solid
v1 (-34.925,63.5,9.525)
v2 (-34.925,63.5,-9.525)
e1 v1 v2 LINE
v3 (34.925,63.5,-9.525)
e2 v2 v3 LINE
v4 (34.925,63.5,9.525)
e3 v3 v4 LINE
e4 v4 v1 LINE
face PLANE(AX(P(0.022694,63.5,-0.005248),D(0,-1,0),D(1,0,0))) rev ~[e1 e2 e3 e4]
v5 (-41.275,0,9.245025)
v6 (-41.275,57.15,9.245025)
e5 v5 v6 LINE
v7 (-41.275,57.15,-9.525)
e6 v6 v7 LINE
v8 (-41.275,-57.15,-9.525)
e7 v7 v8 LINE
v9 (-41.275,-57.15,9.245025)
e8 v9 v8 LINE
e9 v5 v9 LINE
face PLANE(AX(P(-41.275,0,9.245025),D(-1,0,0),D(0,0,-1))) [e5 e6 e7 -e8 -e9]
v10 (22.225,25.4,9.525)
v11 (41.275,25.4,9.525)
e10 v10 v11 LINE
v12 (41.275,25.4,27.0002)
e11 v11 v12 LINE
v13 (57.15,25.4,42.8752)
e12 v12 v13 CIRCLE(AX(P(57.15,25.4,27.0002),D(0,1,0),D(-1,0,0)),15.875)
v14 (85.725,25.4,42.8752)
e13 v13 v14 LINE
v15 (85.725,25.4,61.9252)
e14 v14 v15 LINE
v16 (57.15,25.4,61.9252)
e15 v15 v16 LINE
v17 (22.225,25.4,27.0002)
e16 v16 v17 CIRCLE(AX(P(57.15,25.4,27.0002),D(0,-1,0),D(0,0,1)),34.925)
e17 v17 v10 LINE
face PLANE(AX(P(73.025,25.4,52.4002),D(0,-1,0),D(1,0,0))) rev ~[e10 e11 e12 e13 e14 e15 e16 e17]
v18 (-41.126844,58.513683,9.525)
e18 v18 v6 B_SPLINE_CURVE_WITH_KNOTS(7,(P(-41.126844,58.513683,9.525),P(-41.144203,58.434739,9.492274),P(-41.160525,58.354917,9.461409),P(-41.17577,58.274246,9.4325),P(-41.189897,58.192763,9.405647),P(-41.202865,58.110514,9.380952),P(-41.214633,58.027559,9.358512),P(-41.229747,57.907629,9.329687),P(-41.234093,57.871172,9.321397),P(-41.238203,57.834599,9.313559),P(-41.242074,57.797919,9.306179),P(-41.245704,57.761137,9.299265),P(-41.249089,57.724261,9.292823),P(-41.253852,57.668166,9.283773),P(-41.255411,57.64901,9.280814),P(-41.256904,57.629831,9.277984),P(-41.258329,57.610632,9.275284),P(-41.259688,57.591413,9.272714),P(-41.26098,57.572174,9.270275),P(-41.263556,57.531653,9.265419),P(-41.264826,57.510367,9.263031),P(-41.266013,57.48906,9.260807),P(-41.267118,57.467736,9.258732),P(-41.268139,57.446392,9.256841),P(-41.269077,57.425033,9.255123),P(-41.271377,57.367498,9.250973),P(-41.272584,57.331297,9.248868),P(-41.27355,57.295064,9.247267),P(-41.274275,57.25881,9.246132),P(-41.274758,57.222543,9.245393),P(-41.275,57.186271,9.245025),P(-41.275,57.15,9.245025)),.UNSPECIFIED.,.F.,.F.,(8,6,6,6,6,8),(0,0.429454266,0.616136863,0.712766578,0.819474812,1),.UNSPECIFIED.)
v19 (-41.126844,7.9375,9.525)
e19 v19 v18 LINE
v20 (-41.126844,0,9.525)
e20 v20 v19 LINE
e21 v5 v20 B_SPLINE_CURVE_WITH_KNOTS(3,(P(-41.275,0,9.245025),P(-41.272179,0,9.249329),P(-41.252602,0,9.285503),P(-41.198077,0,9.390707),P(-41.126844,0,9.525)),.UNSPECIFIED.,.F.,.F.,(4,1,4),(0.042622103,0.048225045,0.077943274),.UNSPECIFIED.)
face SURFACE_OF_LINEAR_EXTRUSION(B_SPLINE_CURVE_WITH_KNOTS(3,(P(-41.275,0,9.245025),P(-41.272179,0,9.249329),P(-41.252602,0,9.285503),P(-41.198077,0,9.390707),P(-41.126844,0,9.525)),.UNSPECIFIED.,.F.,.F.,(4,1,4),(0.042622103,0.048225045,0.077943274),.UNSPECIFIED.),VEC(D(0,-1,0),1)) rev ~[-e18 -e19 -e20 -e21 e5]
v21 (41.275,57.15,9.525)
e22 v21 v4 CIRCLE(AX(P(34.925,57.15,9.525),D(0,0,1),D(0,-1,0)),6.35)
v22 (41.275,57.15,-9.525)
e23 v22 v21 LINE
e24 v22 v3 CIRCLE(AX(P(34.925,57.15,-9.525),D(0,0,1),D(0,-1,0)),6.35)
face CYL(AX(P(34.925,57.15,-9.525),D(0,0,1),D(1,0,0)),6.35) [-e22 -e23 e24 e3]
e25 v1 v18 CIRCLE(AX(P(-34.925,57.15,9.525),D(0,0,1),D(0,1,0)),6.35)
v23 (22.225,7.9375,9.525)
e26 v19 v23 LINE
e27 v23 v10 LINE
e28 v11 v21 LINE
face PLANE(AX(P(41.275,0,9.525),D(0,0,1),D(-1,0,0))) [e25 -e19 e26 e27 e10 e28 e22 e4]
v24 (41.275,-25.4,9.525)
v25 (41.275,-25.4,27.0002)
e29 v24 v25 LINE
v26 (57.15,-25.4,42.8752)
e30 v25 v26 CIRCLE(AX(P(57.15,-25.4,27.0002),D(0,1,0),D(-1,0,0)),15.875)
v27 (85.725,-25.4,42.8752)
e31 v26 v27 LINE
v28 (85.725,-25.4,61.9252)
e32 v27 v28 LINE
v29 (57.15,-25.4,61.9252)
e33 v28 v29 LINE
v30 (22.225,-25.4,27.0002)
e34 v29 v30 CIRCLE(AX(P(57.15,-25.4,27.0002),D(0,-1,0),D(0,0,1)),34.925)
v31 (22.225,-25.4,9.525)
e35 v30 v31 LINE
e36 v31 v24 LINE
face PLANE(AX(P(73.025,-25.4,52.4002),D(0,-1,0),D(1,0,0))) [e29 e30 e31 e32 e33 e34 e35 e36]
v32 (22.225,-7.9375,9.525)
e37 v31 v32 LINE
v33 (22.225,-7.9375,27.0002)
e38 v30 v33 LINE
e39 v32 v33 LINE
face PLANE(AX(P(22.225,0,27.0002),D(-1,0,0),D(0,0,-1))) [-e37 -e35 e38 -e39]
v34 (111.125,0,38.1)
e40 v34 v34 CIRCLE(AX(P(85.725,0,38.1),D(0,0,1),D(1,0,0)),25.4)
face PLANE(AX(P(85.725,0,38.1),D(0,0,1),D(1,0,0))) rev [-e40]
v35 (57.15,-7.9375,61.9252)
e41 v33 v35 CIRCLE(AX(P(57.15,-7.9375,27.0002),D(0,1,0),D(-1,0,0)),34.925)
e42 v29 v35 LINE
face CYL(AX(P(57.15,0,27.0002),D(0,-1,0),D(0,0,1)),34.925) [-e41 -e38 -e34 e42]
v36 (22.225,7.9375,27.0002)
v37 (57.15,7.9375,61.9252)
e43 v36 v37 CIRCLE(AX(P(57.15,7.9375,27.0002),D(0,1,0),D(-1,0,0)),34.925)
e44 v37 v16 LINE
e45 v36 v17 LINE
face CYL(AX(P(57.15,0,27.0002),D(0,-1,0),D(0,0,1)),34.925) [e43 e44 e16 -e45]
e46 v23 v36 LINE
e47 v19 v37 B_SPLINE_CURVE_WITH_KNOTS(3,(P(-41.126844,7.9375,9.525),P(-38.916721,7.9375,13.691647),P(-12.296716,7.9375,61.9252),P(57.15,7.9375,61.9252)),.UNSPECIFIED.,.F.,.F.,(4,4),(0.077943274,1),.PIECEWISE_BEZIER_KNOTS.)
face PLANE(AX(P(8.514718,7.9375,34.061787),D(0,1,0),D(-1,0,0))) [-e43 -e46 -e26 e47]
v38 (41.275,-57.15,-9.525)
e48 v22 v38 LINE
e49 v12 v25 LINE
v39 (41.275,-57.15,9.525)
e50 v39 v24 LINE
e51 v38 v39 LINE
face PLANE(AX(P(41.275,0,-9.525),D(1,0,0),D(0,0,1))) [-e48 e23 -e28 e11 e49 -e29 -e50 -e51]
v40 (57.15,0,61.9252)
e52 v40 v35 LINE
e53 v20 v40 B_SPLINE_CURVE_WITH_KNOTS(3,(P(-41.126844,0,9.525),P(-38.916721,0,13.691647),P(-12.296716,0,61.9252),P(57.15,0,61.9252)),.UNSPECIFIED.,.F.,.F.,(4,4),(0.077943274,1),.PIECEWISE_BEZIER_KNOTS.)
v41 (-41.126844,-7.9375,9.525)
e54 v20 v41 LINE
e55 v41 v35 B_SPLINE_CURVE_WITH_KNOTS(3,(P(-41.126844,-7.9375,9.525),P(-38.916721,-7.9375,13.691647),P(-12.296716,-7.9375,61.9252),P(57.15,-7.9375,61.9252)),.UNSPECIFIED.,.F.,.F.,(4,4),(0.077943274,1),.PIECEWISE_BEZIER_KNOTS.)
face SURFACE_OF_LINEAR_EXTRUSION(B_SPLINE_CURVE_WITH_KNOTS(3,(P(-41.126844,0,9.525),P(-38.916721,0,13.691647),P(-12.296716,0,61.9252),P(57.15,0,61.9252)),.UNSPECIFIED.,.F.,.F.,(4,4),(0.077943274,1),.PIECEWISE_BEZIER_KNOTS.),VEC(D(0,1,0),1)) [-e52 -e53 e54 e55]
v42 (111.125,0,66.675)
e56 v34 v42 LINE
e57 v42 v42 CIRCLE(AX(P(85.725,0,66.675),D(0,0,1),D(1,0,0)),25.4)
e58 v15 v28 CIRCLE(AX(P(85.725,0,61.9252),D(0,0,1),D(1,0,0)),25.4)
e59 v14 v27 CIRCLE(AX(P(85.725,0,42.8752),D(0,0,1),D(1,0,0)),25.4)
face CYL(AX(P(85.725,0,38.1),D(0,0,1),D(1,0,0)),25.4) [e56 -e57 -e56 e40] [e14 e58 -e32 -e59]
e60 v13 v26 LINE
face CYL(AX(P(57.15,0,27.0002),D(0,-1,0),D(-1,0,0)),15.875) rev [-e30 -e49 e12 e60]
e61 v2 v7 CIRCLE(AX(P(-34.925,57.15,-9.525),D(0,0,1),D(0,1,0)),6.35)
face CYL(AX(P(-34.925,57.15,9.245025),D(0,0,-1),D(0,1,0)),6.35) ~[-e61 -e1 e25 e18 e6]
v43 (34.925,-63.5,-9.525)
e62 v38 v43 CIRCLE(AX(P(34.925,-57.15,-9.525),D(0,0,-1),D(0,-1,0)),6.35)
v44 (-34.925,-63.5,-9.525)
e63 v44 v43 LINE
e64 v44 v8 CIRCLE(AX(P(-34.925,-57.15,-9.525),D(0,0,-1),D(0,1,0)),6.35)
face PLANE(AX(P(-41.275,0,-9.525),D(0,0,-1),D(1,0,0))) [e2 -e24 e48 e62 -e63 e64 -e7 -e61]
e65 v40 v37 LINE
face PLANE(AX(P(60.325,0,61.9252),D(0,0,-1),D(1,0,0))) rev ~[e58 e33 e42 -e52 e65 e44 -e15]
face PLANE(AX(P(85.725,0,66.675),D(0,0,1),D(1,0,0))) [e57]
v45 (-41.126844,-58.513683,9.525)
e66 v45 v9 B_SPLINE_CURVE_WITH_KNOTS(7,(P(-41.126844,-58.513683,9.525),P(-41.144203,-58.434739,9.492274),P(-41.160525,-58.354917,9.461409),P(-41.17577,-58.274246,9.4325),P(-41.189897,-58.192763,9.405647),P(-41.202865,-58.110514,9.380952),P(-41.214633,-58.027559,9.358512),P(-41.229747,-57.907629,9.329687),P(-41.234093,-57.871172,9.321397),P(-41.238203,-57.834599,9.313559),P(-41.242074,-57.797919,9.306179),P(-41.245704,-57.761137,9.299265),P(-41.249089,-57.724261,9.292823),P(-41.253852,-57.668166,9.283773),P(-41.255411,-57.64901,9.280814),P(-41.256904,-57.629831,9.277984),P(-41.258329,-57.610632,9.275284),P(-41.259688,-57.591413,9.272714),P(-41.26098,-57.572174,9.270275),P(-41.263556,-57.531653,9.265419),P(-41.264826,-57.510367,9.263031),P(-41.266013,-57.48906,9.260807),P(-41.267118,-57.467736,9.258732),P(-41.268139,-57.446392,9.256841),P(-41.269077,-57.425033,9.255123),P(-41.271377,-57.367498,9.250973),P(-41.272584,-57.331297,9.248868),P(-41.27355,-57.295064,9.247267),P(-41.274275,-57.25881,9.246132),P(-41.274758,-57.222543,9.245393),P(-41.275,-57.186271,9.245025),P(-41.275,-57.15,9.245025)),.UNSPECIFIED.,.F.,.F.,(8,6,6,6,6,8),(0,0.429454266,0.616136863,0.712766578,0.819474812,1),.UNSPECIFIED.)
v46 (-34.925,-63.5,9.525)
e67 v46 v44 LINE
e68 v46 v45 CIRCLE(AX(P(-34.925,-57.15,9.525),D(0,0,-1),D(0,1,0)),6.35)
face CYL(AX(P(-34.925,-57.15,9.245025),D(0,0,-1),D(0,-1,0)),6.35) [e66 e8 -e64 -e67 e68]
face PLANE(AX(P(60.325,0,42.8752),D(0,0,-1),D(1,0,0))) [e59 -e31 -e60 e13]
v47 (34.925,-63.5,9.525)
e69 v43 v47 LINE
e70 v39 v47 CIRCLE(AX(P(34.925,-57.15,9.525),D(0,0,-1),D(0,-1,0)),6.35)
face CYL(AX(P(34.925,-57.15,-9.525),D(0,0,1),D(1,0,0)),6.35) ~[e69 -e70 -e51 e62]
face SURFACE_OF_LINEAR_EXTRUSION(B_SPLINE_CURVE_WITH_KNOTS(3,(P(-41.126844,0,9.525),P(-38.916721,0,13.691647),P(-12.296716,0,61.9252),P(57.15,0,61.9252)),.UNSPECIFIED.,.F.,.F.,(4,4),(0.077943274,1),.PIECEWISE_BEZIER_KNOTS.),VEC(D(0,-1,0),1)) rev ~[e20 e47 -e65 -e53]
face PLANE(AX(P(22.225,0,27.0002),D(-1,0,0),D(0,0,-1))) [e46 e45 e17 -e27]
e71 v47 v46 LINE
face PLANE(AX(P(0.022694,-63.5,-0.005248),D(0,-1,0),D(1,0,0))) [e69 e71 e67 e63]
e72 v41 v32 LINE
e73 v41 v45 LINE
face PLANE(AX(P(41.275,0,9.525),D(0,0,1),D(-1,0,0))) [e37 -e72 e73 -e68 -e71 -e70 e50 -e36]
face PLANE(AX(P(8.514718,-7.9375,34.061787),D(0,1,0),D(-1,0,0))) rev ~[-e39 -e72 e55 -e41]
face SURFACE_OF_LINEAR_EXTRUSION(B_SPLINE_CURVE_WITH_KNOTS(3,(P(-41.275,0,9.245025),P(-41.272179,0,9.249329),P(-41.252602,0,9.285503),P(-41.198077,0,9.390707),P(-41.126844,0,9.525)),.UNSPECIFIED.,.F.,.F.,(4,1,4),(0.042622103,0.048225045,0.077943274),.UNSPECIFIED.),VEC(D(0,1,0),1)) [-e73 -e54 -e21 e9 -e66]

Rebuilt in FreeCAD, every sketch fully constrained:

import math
import FreeCAD as App
import Part
import Sketcher

V = App.Vector
Q = App.Units.Quantity


def edges_at(feature, points):
    """Names of the edges that pass closest to the given points."""
    edges = feature.Shape.Edges
    near = lambda p: min(range(len(edges)), key=lambda i: edges[i].distToShape(Part.Vertex(*p))[0])
    return sorted({f"Edge{near(p) + 1}" for p in points})

doc = App.newDocument("Part")
body = doc.addObject("PartDesign::Body", "Body")

# Sketch on XZ plane
sketch1 = body.newObject("Sketcher::SketchObject", "Sketch")
sketch1.AttachmentSupport = (doc.getObject("XZ_Plane"), [""])
sketch1.MapMode = "FlatFace"
sketch1.addGeometry([
    Part.LineSegment(V(-41.275, 9.245025, 0), V(-41.275, -9.525, 0)),  # 0
    Part.LineSegment(V(-41.275, -9.525, 0), V(41.275, -9.525, 0)),  # 1
    Part.LineSegment(V(41.275, -9.525, 0), V(41.275, 9.525, 0)),  # 2
    Part.LineSegment(V(41.275, 9.525, 0), V(-41.126844, 9.525, 0)),  # 3
    Part.BSplineCurve([V(-41.275, 9.245025, 0), V(-41.272179, 9.249329, 0), V(-41.252602, 9.285503, 0), V(-41.198077, 9.390707, 0), V(-41.126844, 9.525, 0)], [4, 1, 4], [0.042622103, 0.048225045, 0.077943274], False, 3, [1, 1, 1, 1, 1], False),  # 4
], False)
sketch1.addConstraint([
    Sketcher.Constraint("Block", 4),
    Sketcher.Constraint("Coincident", 0, 2, 1, 1),
    Sketcher.Constraint("Coincident", 1, 2, 2, 1),
    Sketcher.Constraint("Coincident", 2, 2, 3, 1),
    Sketcher.Constraint("Coincident", 3, 2, 4, 2),
    Sketcher.Constraint("Coincident", 4, 1, 0, 1),
    Sketcher.Constraint("Vertical", 0),
    Sketcher.Constraint("Horizontal", 1),
    Sketcher.Constraint("Vertical", 2),
    Sketcher.Constraint("Horizontal", 3),
    Sketcher.Constraint("Symmetric", 0, 2, 2, 2, -1, 1),
])
pad1 = body.newObject("PartDesign::Pad", "Pad")
pad1.Profile = sketch1
pad1.Length = Q("5 in")
pad1.Midplane = True

# Sketch on XZ plane
sketch2 = body.newObject("Sketcher::SketchObject", "Sketch001")
sketch2.AttachmentSupport = (doc.getObject("XZ_Plane"), [""])
sketch2.MapMode = "FlatFace"
sketch2.addGeometry([
    Part.LineSegment(V(22.225, 9.525, 0), V(41.275, 9.525, 0)),  # 0
    Part.LineSegment(V(41.275, 9.525, 0), V(41.275, 27.0002, 0)),  # 1
    Part.ArcOfCircle(Part.Circle(V(57.15, 27.0002, 0), V(0, 0, 1), 15.875), math.radians(90), math.radians(180)),  # 2
    Part.LineSegment(V(57.15, 42.8752, 0), V(60.325, 42.8752, 0)),  # 3
    Part.LineSegment(V(60.325, 42.8752, 0), V(60.325, 61.9252, 0)),  # 4
    Part.LineSegment(V(60.325, 61.9252, 0), V(57.15, 61.9252, 0)),  # 5
    Part.ArcOfCircle(Part.Circle(V(57.15, 27.0002, 0), V(0, 0, 1), 34.925), math.radians(90), math.radians(180)),  # 6
    Part.LineSegment(V(22.225, 27.0002, 0), V(22.225, 9.525, 0)),  # 7
], False)
sketch2.addConstraint([
    Sketcher.Constraint("Coincident", 0, 2, 1, 1),
    Sketcher.Constraint("Tangent", 1, 2, 2, 2),
    Sketcher.Constraint("Tangent", 2, 1, 3, 1),
    Sketcher.Constraint("Coincident", 3, 2, 4, 1),
    Sketcher.Constraint("Coincident", 4, 2, 5, 1),
    Sketcher.Constraint("Tangent", 5, 2, 6, 1),
    Sketcher.Constraint("Tangent", 6, 2, 7, 1),
    Sketcher.Constraint("Coincident", 7, 2, 0, 1),
    Sketcher.Constraint("Horizontal", 0),
    Sketcher.Constraint("Vertical", 1),
    Sketcher.Constraint("Horizontal", 3),
    Sketcher.Constraint("Vertical", 4),
    Sketcher.Constraint("Horizontal", 5),
    Sketcher.Constraint("Vertical", 7),
    Sketcher.Constraint("Coincident", 6, 3, 2, 3),
    Sketcher.Constraint("Radius", 2, Q("0.625 in")),
    Sketcher.Constraint("Radius", 6, Q("1.375 in")),
    Sketcher.Constraint("DistanceX", 3, 1, 3, 2, Q("0.125 in")),
    Sketcher.Constraint("DistanceY", 1, 1, 1, 2, Q("0.688 in")),
    Sketcher.Constraint("DistanceX", -1, 1, 2, 3, Q("2.25 in")),
    Sketcher.Constraint("DistanceY", -1, 1, 2, 3, Q("1.063 in")),
])
pad2 = body.newObject("PartDesign::Pad", "Pad001")
pad2.Profile = sketch2
pad2.Length = Q("2 in")
pad2.Midplane = True

# Sketch on XZ plane
sketch3 = body.newObject("Sketcher::SketchObject", "Sketch002")
sketch3.AttachmentSupport = (doc.getObject("XZ_Plane"), [""])
sketch3.MapMode = "FlatFace"
sketch3.addGeometry([
    Part.BSplineCurve([V(-41.126844, 9.525, 0), V(-38.916721, 13.691647, 0), V(-12.296716, 61.9252, 0), V(57.15, 61.9252, 0)], [4, 4], [0.077943274, 1], False, 3, [1, 1, 1, 1], False),
    Part.LineSegment(V(-41.126844, 9.525, 0), V(22.225, 9.525, 0)),
    Part.LineSegment(V(22.225, 9.525, 0), V(22.225, 27.0002, 0)),
    Part.ArcOfCircle(Part.Circle(V(57.15, 27.0002, 0), V(0, 0, 1), 34.925), math.radians(90), math.radians(180)),
], False)
sketch3.addConstraint([
    Sketcher.Constraint("Block", 0),
    Sketcher.Constraint("Coincident", 0, 1, 1, 1),
    Sketcher.Constraint("Coincident", 1, 2, 2, 1),
    Sketcher.Constraint("Tangent", 2, 2, 3, 2),
    Sketcher.Constraint("Coincident", 3, 1, 0, 2),
    Sketcher.Constraint("Horizontal", 1),
    Sketcher.Constraint("Vertical", 2),
    Sketcher.Constraint("Radius", 3, Q("1.375 in")),
    Sketcher.Constraint("DistanceX", -1, 1, 3, 3, Q("2.25 in")),
])
pad3 = body.newObject("PartDesign::Pad", "Pad002")
pad3.Profile = sketch3
pad3.Length = Q("0.625 in")
pad3.Midplane = True

# Sketch on XZ plane
sketch4 = body.newObject("Sketcher::SketchObject", "Sketch003")
sketch4.AttachmentSupport = (doc.getObject("XZ_Plane"), [""])
sketch4.MapMode = "FlatFace"
sketch4.addGeometry([
    Part.LineSegment(V(60.325, 61.9252, 0), V(60.325, 42.8752, 0)),
    Part.LineSegment(V(60.325, 42.8752, 0), V(85.725, 42.8752, 0)),
    Part.LineSegment(V(85.725, 42.8752, 0), V(85.725, 61.9252, 0)),
    Part.LineSegment(V(85.725, 61.9252, 0), V(60.325, 61.9252, 0)),
], False)
sketch4.addConstraint([
    Sketcher.Constraint("Coincident", 0, 2, 1, 1),
    Sketcher.Constraint("Coincident", 1, 2, 2, 1),
    Sketcher.Constraint("Coincident", 2, 2, 3, 1),
    Sketcher.Constraint("Coincident", 3, 2, 0, 1),
    Sketcher.Constraint("Vertical", 0),
    Sketcher.Constraint("Horizontal", 1),
    Sketcher.Constraint("Vertical", 2),
    Sketcher.Constraint("Horizontal", 3),
    Sketcher.Constraint("DistanceX", 1, 1, 1, 2, Q("1 in")),
    Sketcher.Constraint("DistanceY", 0, 2, 0, 1, Q("0.75 in")),
    Sketcher.Constraint("DistanceX", -1, 1, 0, 2, Q("2.375 in")),
    Sketcher.Constraint("DistanceY", -1, 1, 0, 2, Q("1.688 in")),
])
pad4 = body.newObject("PartDesign::Pad", "Pad003")
pad4.Profile = sketch4
pad4.Length = Q("2 in")
pad4.Midplane = True

# Sketch on XZ plane
sketch5 = body.newObject("Sketcher::SketchObject", "Sketch004")
sketch5.AttachmentSupport = (doc.getObject("XZ_Plane"), [""])
sketch5.MapMode = "FlatFace"
sketch5.addGeometry([
    Part.LineSegment(V(85.725, 66.675, 0), V(85.725, 38.1, 0)),
    Part.LineSegment(V(85.725, 38.1, 0), V(111.125, 38.1, 0)),
    Part.LineSegment(V(111.125, 38.1, 0), V(111.125, 66.675, 0)),
    Part.LineSegment(V(111.125, 66.675, 0), V(85.725, 66.675, 0)),
], False)
sketch5.addGeometry(Part.LineSegment(V(85.725, 38.1, 0), V(85.725, 66.675, 0)), True)  # axis
sketch5.addConstraint([
    Sketcher.Constraint("Coincident", 0, 2, 1, 1),
    Sketcher.Constraint("Coincident", 1, 2, 2, 1),
    Sketcher.Constraint("Coincident", 2, 2, 3, 1),
    Sketcher.Constraint("Coincident", 3, 2, 0, 1),
    Sketcher.Constraint("Vertical", 0),
    Sketcher.Constraint("Horizontal", 1),
    Sketcher.Constraint("Vertical", 2),
    Sketcher.Constraint("Horizontal", 3),
    Sketcher.Constraint("Vertical", 4),
    Sketcher.Constraint("Coincident", 4, 1, 0, 2),
    Sketcher.Constraint("Horizontal", 2, 2, 4, 2),
    Sketcher.Constraint("DistanceX", 1, 1, 1, 2, Q("1 in")),
    Sketcher.Constraint("DistanceY", -1, 1, 0, 2, Q("1.5 in")),
    Sketcher.Constraint("DistanceY", 0, 2, 0, 1, Q("1.125 in")),
    Sketcher.Constraint("DistanceX", -1, 1, 0, 2, Q("3.375 in")),
])
revolution = body.newObject("PartDesign::Revolution", "Revolution")
revolution.Profile = sketch5
revolution.ReferenceAxis = (sketch5, ["Axis0"])
revolution.Angle = 360
doc.recompute()

fillet = body.newObject("PartDesign::Fillet", "Fillet")
fillet.Base = (revolution, edges_at(revolution, [
    (41.275, -63.5, 0),
    (-41.275, -63.5, -0.14),
    (-41.275, 63.5, -0.14),
    (41.275, 63.5, 0),
]))
fillet.Radius = Q("0.25 in")

doc.recompute()
